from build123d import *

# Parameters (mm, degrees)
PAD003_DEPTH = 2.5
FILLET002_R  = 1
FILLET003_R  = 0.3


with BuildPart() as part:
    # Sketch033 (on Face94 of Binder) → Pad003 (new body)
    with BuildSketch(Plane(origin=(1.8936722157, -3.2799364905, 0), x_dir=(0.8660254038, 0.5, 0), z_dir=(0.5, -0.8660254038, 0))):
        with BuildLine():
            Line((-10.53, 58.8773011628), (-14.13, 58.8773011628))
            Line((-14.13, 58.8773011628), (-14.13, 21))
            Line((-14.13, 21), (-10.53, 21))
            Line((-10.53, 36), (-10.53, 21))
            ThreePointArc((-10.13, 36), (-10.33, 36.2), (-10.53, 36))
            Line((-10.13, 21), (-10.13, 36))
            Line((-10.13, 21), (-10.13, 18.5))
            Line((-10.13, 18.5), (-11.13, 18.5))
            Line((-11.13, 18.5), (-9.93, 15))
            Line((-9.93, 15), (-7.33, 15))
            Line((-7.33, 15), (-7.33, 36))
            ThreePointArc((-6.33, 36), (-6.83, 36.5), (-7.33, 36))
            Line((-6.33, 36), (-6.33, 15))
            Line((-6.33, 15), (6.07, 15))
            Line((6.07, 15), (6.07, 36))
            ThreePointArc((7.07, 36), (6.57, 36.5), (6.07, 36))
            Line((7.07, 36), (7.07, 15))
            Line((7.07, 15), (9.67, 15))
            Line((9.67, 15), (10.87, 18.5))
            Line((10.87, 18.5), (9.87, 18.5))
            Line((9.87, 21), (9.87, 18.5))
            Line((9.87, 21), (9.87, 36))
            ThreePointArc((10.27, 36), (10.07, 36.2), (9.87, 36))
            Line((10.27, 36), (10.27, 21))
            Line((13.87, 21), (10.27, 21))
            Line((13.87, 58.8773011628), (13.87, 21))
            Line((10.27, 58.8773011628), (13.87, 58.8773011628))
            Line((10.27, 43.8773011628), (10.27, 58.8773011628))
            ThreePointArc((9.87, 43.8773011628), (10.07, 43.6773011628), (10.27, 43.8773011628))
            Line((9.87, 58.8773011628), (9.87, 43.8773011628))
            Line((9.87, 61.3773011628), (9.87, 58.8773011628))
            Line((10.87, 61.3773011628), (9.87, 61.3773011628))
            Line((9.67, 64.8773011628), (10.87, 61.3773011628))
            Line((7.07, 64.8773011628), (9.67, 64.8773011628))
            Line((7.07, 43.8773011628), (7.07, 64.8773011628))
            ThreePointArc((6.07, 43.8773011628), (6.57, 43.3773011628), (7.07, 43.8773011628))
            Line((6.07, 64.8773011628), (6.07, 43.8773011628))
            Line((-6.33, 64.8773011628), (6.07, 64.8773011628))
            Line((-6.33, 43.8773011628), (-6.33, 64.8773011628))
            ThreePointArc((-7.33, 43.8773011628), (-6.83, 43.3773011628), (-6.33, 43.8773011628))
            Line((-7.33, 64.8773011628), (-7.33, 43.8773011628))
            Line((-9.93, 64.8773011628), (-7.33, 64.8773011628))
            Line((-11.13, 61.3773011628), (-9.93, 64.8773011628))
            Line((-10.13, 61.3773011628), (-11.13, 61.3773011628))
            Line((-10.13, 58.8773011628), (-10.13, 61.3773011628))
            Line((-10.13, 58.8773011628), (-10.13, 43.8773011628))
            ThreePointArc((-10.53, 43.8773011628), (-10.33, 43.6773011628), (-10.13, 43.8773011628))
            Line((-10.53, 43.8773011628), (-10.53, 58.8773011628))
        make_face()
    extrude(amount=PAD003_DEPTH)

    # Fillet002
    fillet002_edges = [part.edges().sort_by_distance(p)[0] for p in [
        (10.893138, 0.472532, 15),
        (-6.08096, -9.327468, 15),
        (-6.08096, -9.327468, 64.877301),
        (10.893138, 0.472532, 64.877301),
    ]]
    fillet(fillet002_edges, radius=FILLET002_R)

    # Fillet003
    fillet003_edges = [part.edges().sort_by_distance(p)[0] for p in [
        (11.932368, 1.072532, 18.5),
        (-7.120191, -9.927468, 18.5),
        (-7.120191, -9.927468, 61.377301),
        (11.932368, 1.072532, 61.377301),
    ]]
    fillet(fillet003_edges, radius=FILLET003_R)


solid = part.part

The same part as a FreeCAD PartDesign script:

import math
import FreeCAD as App
import Part
import Sketcher

V = App.Vector
Q = App.Units.Quantity


def edges_at(feature, points):
    """Names of the edges that pass closest to the given points."""
    edges = feature.Shape.Edges
    near = lambda p: min(range(len(edges)), key=lambda i: edges[i].distToShape(Part.Vertex(*p))[0])
    return sorted({f"Edge{near(p) + 1}" for p in points})

doc = App.newDocument("Part")
body = doc.addObject("PartDesign::Body", "Body")

# Sketch on an angled plane
sketch1 = doc.addObject("Sketcher::SketchObject", "Sketch")
body.addObject(sketch1)
sketch1.Placement = App.Placement(V(1.893672, -3.279936, 0), App.Rotation(V(0.866025404, 0.5, 0), V(0, 0, 1), V(0.5, -0.866025404, 0), "ZXY"))
sketch1.addGeometry([
    Part.LineSegment(V(-10.53, 58.877301, 0), V(-14.13, 58.877301, 0)),  # 0
    Part.LineSegment(V(-14.13, 58.877301, 0), V(-14.13, 21, 0)),  # 1
    Part.LineSegment(V(-14.13, 21, 0), V(-10.53, 21, 0)),  # 2
    Part.LineSegment(V(-10.53, 21, 0), V(-10.53, 36, 0)),  # 3
    Part.ArcOfCircle(Part.Circle(V(-10.33, 36, 0), V(0, 0, 1), 0.2), math.radians(0), math.radians(180)),  # 4
    Part.LineSegment(V(-10.13, 36, 0), V(-10.13, 18.5, 0)),  # 5
    Part.LineSegment(V(-10.13, 18.5, 0), V(-11.13, 18.5, 0)),  # 6
    Part.LineSegment(V(-11.13, 18.5, 0), V(-9.93, 15, 0)),  # 7
    Part.LineSegment(V(-9.93, 15, 0), V(-7.33, 15, 0)),  # 8
    Part.LineSegment(V(-7.33, 15, 0), V(-7.33, 36, 0)),  # 9
    Part.ArcOfCircle(Part.Circle(V(-6.83, 36, 0), V(0, 0, 1), 0.5), math.radians(0), math.radians(180)),  # 10
    Part.LineSegment(V(-6.33, 36, 0), V(-6.33, 15, 0)),  # 11
    Part.LineSegment(V(-6.33, 15, 0), V(6.07, 15, 0)),  # 12
    Part.LineSegment(V(6.07, 15, 0), V(6.07, 36, 0)),  # 13
    Part.ArcOfCircle(Part.Circle(V(6.57, 36, 0), V(0, 0, 1), 0.5), math.radians(0), math.radians(180)),  # 14
    Part.LineSegment(V(7.07, 36, 0), V(7.07, 15, 0)),  # 15
    Part.LineSegment(V(7.07, 15, 0), V(9.67, 15, 0)),  # 16
    Part.LineSegment(V(9.67, 15, 0), V(10.87, 18.5, 0)),  # 17
    Part.LineSegment(V(10.87, 18.5, 0), V(9.87, 18.5, 0)),  # 18
    Part.LineSegment(V(9.87, 18.5, 0), V(9.87, 36, 0)),  # 19
    Part.ArcOfCircle(Part.Circle(V(10.07, 36, 0), V(0, 0, 1), 0.2), math.radians(0), math.radians(180)),  # 20
    Part.LineSegment(V(10.27, 36, 0), V(10.27, 21, 0)),  # 21
    Part.LineSegment(V(10.27, 21, 0), V(13.87, 21, 0)),  # 22
    Part.LineSegment(V(13.87, 21, 0), V(13.87, 58.877301, 0)),  # 23
    Part.LineSegment(V(13.87, 58.877301, 0), V(10.27, 58.877301, 0)),  # 24
    Part.LineSegment(V(10.27, 58.877301, 0), V(10.27, 43.877301, 0)),  # 25
    Part.ArcOfCircle(Part.Circle(V(10.07, 43.877301, 0), V(0, 0, 1), 0.2), math.radians(180), math.radians(360)),  # 26
    Part.LineSegment(V(9.87, 43.877301, 0), V(9.87, 61.377301, 0)),  # 27
    Part.LineSegment(V(9.87, 61.377301, 0), V(10.87, 61.377301, 0)),  # 28
    Part.LineSegment(V(10.87, 61.377301, 0), V(9.67, 64.877301, 0)),  # 29
    Part.LineSegment(V(9.67, 64.877301, 0), V(7.07, 64.877301, 0)),  # 30
    Part.LineSegment(V(7.07, 64.877301, 0), V(7.07, 43.877301, 0)),  # 31
    Part.ArcOfCircle(Part.Circle(V(6.57, 43.877301, 0), V(0, 0, 1), 0.5), math.radians(180), math.radians(360)),  # 32
    Part.LineSegment(V(6.07, 43.877301, 0), V(6.07, 64.877301, 0)),  # 33
    Part.LineSegment(V(6.07, 64.877301, 0), V(-6.33, 64.877301, 0)),  # 34
    Part.LineSegment(V(-6.33, 64.877301, 0), V(-6.33, 43.877301, 0)),  # 35
    Part.ArcOfCircle(Part.Circle(V(-6.83, 43.877301, 0), V(0, 0, 1), 0.5), math.radians(180), math.radians(360)),  # 36
    Part.LineSegment(V(-7.33, 43.877301, 0), V(-7.33, 64.877301, 0)),  # 37
    Part.LineSegment(V(-7.33, 64.877301, 0), V(-9.93, 64.877301, 0)),  # 38
    Part.LineSegment(V(-9.93, 64.877301, 0), V(-11.13, 61.377301, 0)),  # 39
    Part.LineSegment(V(-11.13, 61.377301, 0), V(-10.13, 61.377301, 0)),  # 40
    Part.LineSegment(V(-10.13, 61.377301, 0), V(-10.13, 43.877301, 0)),  # 41
    Part.ArcOfCircle(Part.Circle(V(-10.33, 43.877301, 0), V(0, 0, 1), 0.2), math.radians(180), math.radians(360)),  # 42
    Part.LineSegment(V(-10.53, 43.877301, 0), V(-10.53, 58.877301, 0)),  # 43
], False)
sketch1.addConstraint([
    Sketcher.Constraint("Coincident", 0, 2, 1, 1),
    Sketcher.Constraint("Coincident", 1, 2, 2, 1),
    Sketcher.Constraint("Coincident", 2, 2, 3, 1),
    Sketcher.Constraint("Tangent", 3, 2, 4, 2),
    Sketcher.Constraint("Tangent", 4, 1, 5, 1),
    Sketcher.Constraint("Coincident", 5, 2, 6, 1),
    Sketcher.Constraint("Coincident", 6, 2, 7, 1),
    Sketcher.Constraint("Coincident", 7, 2, 8, 1),
    Sketcher.Constraint("Coincident", 8, 2, 9, 1),
    Sketcher.Constraint("Tangent", 9, 2, 10, 2),
    Sketcher.Constraint("Tangent", 10, 1, 11, 1),
    Sketcher.Constraint("Coincident", 11, 2, 12, 1),
    Sketcher.Constraint("Coincident", 12, 2, 13, 1),
    Sketcher.Constraint("Tangent", 13, 2, 14, 2),
    Sketcher.Constraint("Tangent", 14, 1, 15, 1),
    Sketcher.Constraint("Coincident", 15, 2, 16, 1),
    Sketcher.Constraint("Coincident", 16, 2, 17, 1),
    Sketcher.Constraint("Coincident", 17, 2, 18, 1),
    Sketcher.Constraint("Coincident", 18, 2, 19, 1),
    Sketcher.Constraint("Tangent", 19, 2, 20, 2),
    Sketcher.Constraint("Tangent", 20, 1, 21, 1),
    Sketcher.Constraint("Coincident", 21, 2, 22, 1),
    Sketcher.Constraint("Coincident", 22, 2, 23, 1),
    Sketcher.Constraint("Coincident", 23, 2, 24, 1),
    Sketcher.Constraint("Coincident", 24, 2, 25, 1),
    Sketcher.Constraint("Tangent", 25, 2, 26, 2),
    Sketcher.Constraint("Tangent", 26, 1, 27, 1),
    Sketcher.Constraint("Coincident", 27, 2, 28, 1),
    Sketcher.Constraint("Coincident", 28, 2, 29, 1),
    Sketcher.Constraint("Coincident", 29, 2, 30, 1),
    Sketcher.Constraint("Coincident", 30, 2, 31, 1),
    Sketcher.Constraint("Tangent", 31, 2, 32, 2),
    Sketcher.Constraint("Tangent", 32, 1, 33, 1),
    Sketcher.Constraint("Coincident", 33, 2, 34, 1),
    Sketcher.Constraint("Coincident", 34, 2, 35, 1),
    Sketcher.Constraint("Tangent", 35, 2, 36, 2),
    Sketcher.Constraint("Tangent", 36, 1, 37, 1),
    Sketcher.Constraint("Coincident", 37, 2, 38, 1),
    Sketcher.Constraint("Coincident", 38, 2, 39, 1),
    Sketcher.Constraint("Coincident", 39, 2, 40, 1),
    Sketcher.Constraint("Coincident", 40, 2, 41, 1),
    Sketcher.Constraint("Tangent", 41, 2, 42, 2),
    Sketcher.Constraint("Tangent", 42, 1, 43, 1),
    Sketcher.Constraint("Coincident", 43, 2, 0, 1),
    Sketcher.Constraint("Horizontal", 0),
    Sketcher.Constraint("Vertical", 1),
    Sketcher.Constraint("Horizontal", 2),
    Sketcher.Constraint("Vertical", 3),
    Sketcher.Constraint("Vertical", 5),
    Sketcher.Constraint("Horizontal", 6),
    Sketcher.Constraint("Horizontal", 8),
    Sketcher.Constraint("Vertical", 9),
    Sketcher.Constraint("Vertical", 11),
    Sketcher.Constraint("Horizontal", 12),
    Sketcher.Constraint("Vertical", 13),
    Sketcher.Constraint("Vertical", 15),
    Sketcher.Constraint("Horizontal", 16),
    Sketcher.Constraint("Horizontal", 18),
    Sketcher.Constraint("Vertical", 19),
    Sketcher.Constraint("Vertical", 21),
    Sketcher.Constraint("Horizontal", 22),
    Sketcher.Constraint("Vertical", 23),
    Sketcher.Constraint("Horizontal", 24),
    Sketcher.Constraint("Vertical", 25),
    Sketcher.Constraint("Vertical", 27),
    Sketcher.Constraint("Horizontal", 28),
    Sketcher.Constraint("Horizontal", 30),
    Sketcher.Constraint("Vertical", 31),
    Sketcher.Constraint("Vertical", 33),
    Sketcher.Constraint("Horizontal", 34),
    Sketcher.Constraint("Vertical", 35),
    Sketcher.Constraint("Vertical", 37),
    Sketcher.Constraint("Horizontal", 38),
    Sketcher.Constraint("Horizontal", 40),
    Sketcher.Constraint("Vertical", 41),
    Sketcher.Constraint("Vertical", 43),
    Sketcher.Constraint("Equal", 10, 14),
    Sketcher.Constraint("Equal", 4, 20),
    Sketcher.Constraint("Equal", 20, 26),
    Sketcher.Constraint("Equal", 14, 32),
    Sketcher.Constraint("Equal", 32, 36),
    Sketcher.Constraint("Equal", 26, 42),
    Sketcher.Constraint("Parallel", 7, 29),
    Sketcher.Constraint("Parallel", 17, 39),
    Sketcher.Constraint("Horizontal", 4, 3, 10, 3),
    Sketcher.Constraint("Horizontal", 10, 3, 14, 3),
    Sketcher.Constraint("Horizontal", 14, 3, 20, 3),
    Sketcher.Constraint("Horizontal", 26, 3, 32, 3),
    Sketcher.Constraint("Horizontal", 32, 3, 36, 3),
    Sketcher.Constraint("Horizontal", 36, 3, 42, 3),
    Sketcher.Constraint("Horizontal", 8, 2, 11, 2),
    Sketcher.Constraint("Horizontal", 12, 2, 15, 2),
    Sketcher.Constraint("Horizontal", 6, 2, 17, 2),
    Sketcher.Constraint("Horizontal", 2, 2, 21, 2),
    Sketcher.Constraint("Horizontal", 0, 2, 23, 2),
    Sketcher.Constraint("Horizontal", 30, 2, 33, 2),
    Sketcher.Constraint("Horizontal", 34, 2, 37, 2),
    Sketcher.Constraint("Horizontal", 28, 2, 39, 2),
    Sketcher.Constraint("Vertical", 20, 3, 26, 3),
    Sketcher.Constraint("Vertical", 14, 3, 32, 3),
    Sketcher.Constraint("Vertical", 10, 3, 36, 3),
    Sketcher.Constraint("Vertical", 4, 3, 42, 3),
    Sketcher.Constraint("Vertical", 17, 2, 28, 2),
    Sketcher.Constraint("Vertical", 16, 2, 29, 2),
    Sketcher.Constraint("Vertical", 7, 2, 38, 2),
    Sketcher.Constraint("Vertical", 6, 2, 39, 2),
    Sketcher.Constraint("Equal", 8, 16),
    Sketcher.Constraint("Equal", 6, 18),
    Sketcher.Constraint("Equal", 2, 22),
    Sketcher.Constraint("Equal", 21, 25),
    Sketcher.Constraint("Equal", 19, 27),
    Sketcher.Constraint("Radius", 4, Q("0.2 mm")),
    Sketcher.Constraint("Radius", 10, Q("0.5 mm")),
    Sketcher.Constraint("DistanceX", 6, 2, 6, 1, Q("1 mm")),
    Sketcher.Constraint("DistanceY", 3, 1, 3, 2, Q("15 mm")),
    Sketcher.Constraint("DistanceY", 9, 1, 9, 2, Q("21 mm")),
    Sketcher.Constraint("DistanceX", 0, 2, 0, 1, Q("3.6 mm")),
    Sketcher.Constraint("DistanceX", 8, 1, 8, 2, Q("2.6 mm")),
    Sketcher.Constraint("DistanceX", 12, 1, 12, 2, Q("12.4 mm")),
    Sketcher.Constraint("DistanceY", 5, 2, 5, 1, Q("17.5 mm")),
    Sketcher.Constraint("DistanceY", -1, 1, 4, 3, Q("36 mm")),
    Sketcher.Constraint("DistanceX", 4, 3, 9, 2, Q("3 mm")),
    Sketcher.Constraint("DistanceX", 4, 3, -1, 1, Q("10.33 mm")),
    Sketcher.Constraint("DistanceY", 1, 2, 1, 1, Q("37.877301 mm")),
])
pad1 = doc.addObject("PartDesign::Pad", "Pad")
body.addObject(pad1)
pad1.Profile = sketch1
pad1.Length = 2.5
doc.recompute()

fillet = doc.addObject("PartDesign::Fillet", "Fillet")
body.addObject(fillet)
fillet.Base = (pad1, edges_at(pad1, [
    (10.893, 0.473, 15),
    (-6.081, -9.327, 15),
    (-6.081, -9.327, 64.877),
    (10.893, 0.473, 64.877),
]))
fillet.Radius = 1
doc.recompute()

fillet2 = doc.addObject("PartDesign::Fillet", "Fillet001")
body.addObject(fillet2)
fillet2.Base = (fillet, edges_at(fillet, [
    (11.932, 1.073, 18.5),
    (-7.12, -9.927, 18.5),
    (-7.12, -9.927, 61.377),
    (11.932, 1.073, 61.377),
]))
fillet2.Radius = 0.3

doc.recompute()
